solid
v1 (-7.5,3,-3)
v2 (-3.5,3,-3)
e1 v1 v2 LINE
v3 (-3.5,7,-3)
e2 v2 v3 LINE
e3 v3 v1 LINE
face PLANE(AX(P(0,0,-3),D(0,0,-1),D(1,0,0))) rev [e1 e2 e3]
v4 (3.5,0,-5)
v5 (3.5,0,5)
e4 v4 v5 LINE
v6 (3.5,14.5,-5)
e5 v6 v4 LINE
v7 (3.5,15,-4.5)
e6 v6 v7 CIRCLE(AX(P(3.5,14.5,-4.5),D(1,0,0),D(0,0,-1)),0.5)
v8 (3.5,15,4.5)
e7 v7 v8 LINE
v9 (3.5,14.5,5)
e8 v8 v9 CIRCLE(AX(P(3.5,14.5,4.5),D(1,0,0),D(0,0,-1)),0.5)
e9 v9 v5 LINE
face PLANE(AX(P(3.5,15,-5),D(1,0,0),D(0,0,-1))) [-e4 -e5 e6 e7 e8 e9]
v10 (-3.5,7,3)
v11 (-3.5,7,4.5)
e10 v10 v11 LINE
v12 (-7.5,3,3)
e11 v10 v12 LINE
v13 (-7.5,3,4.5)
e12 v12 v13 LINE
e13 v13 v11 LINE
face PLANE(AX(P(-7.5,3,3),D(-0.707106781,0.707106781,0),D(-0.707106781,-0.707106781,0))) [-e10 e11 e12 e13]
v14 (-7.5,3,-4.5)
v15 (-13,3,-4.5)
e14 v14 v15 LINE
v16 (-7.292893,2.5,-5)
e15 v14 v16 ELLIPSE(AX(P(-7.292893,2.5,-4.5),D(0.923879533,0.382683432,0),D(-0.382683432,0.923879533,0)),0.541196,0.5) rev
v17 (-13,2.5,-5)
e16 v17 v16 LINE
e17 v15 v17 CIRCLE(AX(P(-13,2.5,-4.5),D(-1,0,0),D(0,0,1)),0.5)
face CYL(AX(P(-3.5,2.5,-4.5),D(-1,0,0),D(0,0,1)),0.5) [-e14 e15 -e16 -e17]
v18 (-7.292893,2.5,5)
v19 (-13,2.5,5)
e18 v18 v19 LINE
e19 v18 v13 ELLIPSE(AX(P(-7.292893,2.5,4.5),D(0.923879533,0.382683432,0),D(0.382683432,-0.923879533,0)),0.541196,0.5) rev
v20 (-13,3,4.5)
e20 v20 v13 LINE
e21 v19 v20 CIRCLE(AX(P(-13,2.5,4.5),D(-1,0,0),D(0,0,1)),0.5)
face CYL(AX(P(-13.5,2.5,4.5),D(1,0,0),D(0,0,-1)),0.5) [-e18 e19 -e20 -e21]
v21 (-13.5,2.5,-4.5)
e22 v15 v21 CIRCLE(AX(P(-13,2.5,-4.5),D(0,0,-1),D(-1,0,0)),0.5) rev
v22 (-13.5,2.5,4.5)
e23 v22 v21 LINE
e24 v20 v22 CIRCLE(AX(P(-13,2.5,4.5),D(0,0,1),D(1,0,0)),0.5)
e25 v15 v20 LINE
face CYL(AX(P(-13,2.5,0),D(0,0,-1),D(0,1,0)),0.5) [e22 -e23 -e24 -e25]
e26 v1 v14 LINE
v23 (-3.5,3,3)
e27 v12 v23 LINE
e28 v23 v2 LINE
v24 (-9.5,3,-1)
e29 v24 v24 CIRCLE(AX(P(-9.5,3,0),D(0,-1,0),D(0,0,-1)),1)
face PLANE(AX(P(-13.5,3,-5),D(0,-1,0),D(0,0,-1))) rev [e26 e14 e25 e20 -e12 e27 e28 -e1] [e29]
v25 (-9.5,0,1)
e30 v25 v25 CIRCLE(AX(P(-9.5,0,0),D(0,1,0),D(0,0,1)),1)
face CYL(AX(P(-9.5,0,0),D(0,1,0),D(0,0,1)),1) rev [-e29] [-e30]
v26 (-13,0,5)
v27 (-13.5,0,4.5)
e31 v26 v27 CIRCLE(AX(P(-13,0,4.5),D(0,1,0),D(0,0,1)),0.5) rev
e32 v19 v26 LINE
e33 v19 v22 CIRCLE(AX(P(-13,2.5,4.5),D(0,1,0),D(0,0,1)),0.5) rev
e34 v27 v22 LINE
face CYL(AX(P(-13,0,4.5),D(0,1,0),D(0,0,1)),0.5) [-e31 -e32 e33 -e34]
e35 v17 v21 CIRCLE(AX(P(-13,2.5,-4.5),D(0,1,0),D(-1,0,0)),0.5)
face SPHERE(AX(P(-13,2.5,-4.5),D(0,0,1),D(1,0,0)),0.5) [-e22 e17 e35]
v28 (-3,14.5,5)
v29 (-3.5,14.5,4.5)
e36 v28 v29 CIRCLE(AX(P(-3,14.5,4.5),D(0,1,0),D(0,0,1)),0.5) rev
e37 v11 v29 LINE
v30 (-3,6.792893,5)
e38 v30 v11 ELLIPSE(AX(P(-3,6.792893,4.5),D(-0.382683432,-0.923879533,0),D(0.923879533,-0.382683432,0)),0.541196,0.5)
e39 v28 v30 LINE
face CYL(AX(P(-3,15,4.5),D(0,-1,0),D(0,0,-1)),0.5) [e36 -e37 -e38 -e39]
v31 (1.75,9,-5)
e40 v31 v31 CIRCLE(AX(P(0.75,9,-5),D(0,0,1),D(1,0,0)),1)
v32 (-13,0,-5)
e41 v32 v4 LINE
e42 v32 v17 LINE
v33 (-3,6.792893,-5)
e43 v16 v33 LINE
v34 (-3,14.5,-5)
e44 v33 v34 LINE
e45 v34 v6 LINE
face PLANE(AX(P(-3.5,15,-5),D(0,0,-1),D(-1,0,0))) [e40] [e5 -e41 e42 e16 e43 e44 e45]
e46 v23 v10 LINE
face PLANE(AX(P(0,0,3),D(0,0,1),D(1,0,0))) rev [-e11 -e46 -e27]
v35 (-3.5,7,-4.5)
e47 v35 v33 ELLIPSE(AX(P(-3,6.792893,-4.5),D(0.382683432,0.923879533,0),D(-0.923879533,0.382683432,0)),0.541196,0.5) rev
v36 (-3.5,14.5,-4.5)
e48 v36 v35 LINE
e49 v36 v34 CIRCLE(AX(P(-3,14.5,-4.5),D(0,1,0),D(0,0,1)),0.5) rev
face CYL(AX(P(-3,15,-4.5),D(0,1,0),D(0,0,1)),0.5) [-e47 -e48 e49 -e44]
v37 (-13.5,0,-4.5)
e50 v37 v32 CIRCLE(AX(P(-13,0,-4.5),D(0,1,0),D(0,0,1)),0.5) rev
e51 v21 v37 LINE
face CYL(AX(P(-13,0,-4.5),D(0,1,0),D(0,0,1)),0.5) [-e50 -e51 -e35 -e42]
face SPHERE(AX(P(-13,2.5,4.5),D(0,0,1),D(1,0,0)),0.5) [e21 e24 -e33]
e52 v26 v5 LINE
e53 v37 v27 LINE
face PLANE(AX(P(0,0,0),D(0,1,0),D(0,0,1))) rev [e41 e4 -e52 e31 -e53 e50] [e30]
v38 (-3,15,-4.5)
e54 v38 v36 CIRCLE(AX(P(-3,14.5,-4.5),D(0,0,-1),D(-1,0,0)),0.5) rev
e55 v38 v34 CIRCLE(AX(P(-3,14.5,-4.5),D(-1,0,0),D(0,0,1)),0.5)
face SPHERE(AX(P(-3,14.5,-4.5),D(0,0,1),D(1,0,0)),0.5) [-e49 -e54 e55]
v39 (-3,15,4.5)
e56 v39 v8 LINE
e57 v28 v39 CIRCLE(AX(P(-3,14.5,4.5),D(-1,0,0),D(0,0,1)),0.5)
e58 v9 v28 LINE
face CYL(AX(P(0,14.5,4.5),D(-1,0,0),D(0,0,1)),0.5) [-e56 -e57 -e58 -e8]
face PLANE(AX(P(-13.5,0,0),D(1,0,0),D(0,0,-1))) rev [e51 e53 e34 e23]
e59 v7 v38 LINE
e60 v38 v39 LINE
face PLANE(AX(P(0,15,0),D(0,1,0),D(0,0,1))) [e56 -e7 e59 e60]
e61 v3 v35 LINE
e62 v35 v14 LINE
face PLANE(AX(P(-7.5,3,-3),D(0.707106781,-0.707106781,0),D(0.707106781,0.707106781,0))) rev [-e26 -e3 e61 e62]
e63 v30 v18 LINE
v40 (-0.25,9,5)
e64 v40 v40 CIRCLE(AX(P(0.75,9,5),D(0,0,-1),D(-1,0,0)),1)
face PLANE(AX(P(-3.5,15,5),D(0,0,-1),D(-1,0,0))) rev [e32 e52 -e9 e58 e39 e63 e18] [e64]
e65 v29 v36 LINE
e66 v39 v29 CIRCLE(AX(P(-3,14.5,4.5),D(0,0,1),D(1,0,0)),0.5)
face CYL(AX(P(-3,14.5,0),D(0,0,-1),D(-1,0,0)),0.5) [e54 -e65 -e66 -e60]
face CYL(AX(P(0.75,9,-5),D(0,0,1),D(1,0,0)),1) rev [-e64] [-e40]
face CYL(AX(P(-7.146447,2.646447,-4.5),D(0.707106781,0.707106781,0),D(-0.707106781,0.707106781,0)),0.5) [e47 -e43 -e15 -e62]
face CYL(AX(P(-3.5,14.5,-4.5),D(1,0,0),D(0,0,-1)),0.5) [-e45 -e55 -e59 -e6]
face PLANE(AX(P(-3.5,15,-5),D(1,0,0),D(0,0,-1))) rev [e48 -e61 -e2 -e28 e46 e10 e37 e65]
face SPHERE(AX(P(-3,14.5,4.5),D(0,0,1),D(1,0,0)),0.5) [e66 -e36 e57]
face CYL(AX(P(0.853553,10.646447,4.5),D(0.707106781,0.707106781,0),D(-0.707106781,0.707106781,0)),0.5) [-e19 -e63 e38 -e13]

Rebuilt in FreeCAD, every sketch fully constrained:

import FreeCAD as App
import Part
import Sketcher
Q = App.Units.Quantity


def edges_at(feature, points):
    """Names of the edges that pass closest to the given points."""
    edges = feature.Shape.Edges
    near = lambda p: min(range(len(edges)), key=lambda i: edges[i].distToShape(Part.Vertex(*p))[0])
    return sorted({f"Edge{near(p) + 1}" for p in points})


def add_polygon(sketch, points):
    """Adds a closed chain of lines whose ends are joined by coincident constraints."""
    first, n = sketch.GeometryCount, len(points)
    for a, b in zip(points, points[1:] + points[:1]):
        sketch.addGeometry(Part.LineSegment(App.Vector(*a, 0), App.Vector(*b, 0)), False)
    for i in range(n):
        sketch.addConstraint(Sketcher.Constraint("Coincident", first + i, 2, first + (i + 1) % n, 1))

doc = App.newDocument("Part")
body = doc.addObject("PartDesign::Body", "Body")

# Sketch on XZ plane
sketch1 = doc.addObject("Sketcher::SketchObject", "Sketch")
body.addObject(sketch1)
sketch1.AttachmentSupport = (doc.XZ_Plane, [""])
sketch1.MapMode = "FlatFace"
add_polygon(sketch1, [(-4, -5), (-4, 5), (4, 5), (4, -5)])  # lines 0-3
sketch1.addConstraint([
    Sketcher.Constraint("Vertical", 0),
    Sketcher.Constraint("Horizontal", 1),
    Sketcher.Constraint("Vertical", 2),
    Sketcher.Constraint("Horizontal", 3),
    Sketcher.Constraint("Symmetric", 0, 2, 2, 2, -1, 1),
    Sketcher.Constraint("DistanceX", 1, 1, 1, 2, Q("7 mm")),
    Sketcher.Constraint("DistanceY", 0, 1, 0, 2, Q("10 mm")),
])
pad1 = doc.addObject("PartDesign::Pad", "Pad")
body.addObject(pad1)
pad1.Profile = sketch1
pad1.Length = 15
pad1.Reversed = True

# Sketch on YZ plane
sketch2 = doc.addObject("Sketcher::SketchObject", "Sketch001")
body.addObject(sketch2)
sketch2.AttachmentSupport = (doc.YZ_Plane, [""])
sketch2.MapMode = "FlatFace"
sketch2.AttachmentOffset = App.Placement(App.Vector(0, 0, -3.5), App.Rotation())
add_polygon(sketch2, [(3, -5), (0, -5), (0, 5), (3, 5)])  # lines 0-3
sketch2.addConstraint([
    Sketcher.Constraint("Horizontal", 0),
    Sketcher.Constraint("Vertical", 1),
    Sketcher.Constraint("Horizontal", 2),
    Sketcher.Constraint("Vertical", 3),
    Sketcher.Constraint("Symmetric", 0, 2, 1, 2, -1, 1),
    Sketcher.Constraint("DistanceX", 0, 2, 0, 1, Q("3 mm")),
    Sketcher.Constraint("DistanceY", 1, 1, 1, 2, Q("10 mm")),
])
pad2 = doc.addObject("PartDesign::Pad", "Pad001")
body.addObject(pad2)
pad2.Profile = sketch2
pad2.Length = 10
pad2.Reversed = True

# Sketch on XY plane
sketch3 = doc.addObject("Sketcher::SketchObject", "Sketch002")
body.addObject(sketch3)
sketch3.AttachmentSupport = (doc.XY_Plane, [""])
sketch3.MapMode = "FlatFace"
sketch3.AttachmentOffset = App.Placement(App.Vector(0, 0, 5), App.Rotation())
add_polygon(sketch3, [(-3.5, 7), (-7.5, 3), (-3.5, 3)])  # lines 0-2
sketch3.addConstraint([
    Sketcher.Constraint("Horizontal", 1),
    Sketcher.Constraint("Vertical", 2),
    Sketcher.Constraint("Equal", 1, 2),
    Sketcher.Constraint("DistanceX", 1, 1, 1, 2, Q("4 mm")),
    Sketcher.Constraint("DistanceY", -1, 1, 0, 2, Q("3 mm")),
    Sketcher.Constraint("DistanceX", 0, 2, -1, 1, Q("7.5 mm")),
])
pad3 = doc.addObject("PartDesign::Pad", "Pad002")
body.addObject(pad3)
pad3.Profile = sketch3
pad3.Length = 2
pad3.Reversed = True
doc.recompute()

mirrored = doc.addObject("PartDesign::Mirrored", "Mirrored")
body.addObject(mirrored)
mirrored.Originals = [pad3]
mirrored.MirrorPlane = (doc.XY_Plane, [""])
body.Tip = mirrored

# Sketch on XZ plane
sketch4 = doc.addObject("Sketcher::SketchObject", "Sketch003")
body.addObject(sketch4)
sketch4.AttachmentSupport = (doc.XZ_Plane, [""])
sketch4.MapMode = "FlatFace"
sketch4.AttachmentOffset = App.Placement(App.Vector(0, 0, -3), App.Rotation())
sketch4.addGeometry(Part.Circle(App.Vector(-9.5, 0, 0), App.Vector(0, 0, 1), 1), False)
sketch4.addConstraint([
    Sketcher.Constraint("PointOnObject", 0, 3, -1),
    Sketcher.Constraint("Diameter", 0, Q("2 mm")),
    Sketcher.Constraint("DistanceX", 0, 3, -1, 1, Q("9.5 mm")),
])
pocket1 = doc.addObject("PartDesign::Pocket", "Pocket")
body.addObject(pocket1)
pocket1.Profile = sketch4
pocket1.Type = "ThroughAll"
pocket1.Midplane = True

# Sketch on XY plane
sketch5 = doc.addObject("Sketcher::SketchObject", "Sketch004")
body.addObject(sketch5)
sketch5.AttachmentSupport = (doc.XY_Plane, [""])
sketch5.MapMode = "FlatFace"
sketch5.AttachmentOffset = App.Placement(App.Vector(0, 0, 5), App.Rotation())
sketch5.addGeometry(Part.Circle(App.Vector(0.8, 9, 0), App.Vector(0, 0, 1), 1), False)
sketch5.addConstraint([
    Sketcher.Constraint("Diameter", 0, Q("2 mm")),
    Sketcher.Constraint("DistanceY", -1, 1, 0, 3, Q("9 mm")),
    Sketcher.Constraint("DistanceX", -1, 1, 0, 3, Q("0.75 mm")),
])
pocket2 = doc.addObject("PartDesign::Pocket", "Pocket001")
body.addObject(pocket2)
pocket2.Profile = sketch5
pocket2.Type = "ThroughAll"
pocket2.Midplane = True
doc.recompute()

fillet = doc.addObject("PartDesign::Fillet", "Fillet")
body.addObject(fillet)
fillet.Base = (pocket2, edges_at(pocket2, [
    (0, 15, -5),
    (-10.5, 3, -5),
    (-10.5, 3, 5),
    (-13.5, 1.5, -5),
    (-13.5, 1.5, 5),
    (-13.5, 3, 0),
    (-5.5, 5, 5),
    (-3.5, 15, 0),
    (-5.5, 5, -5),
    (0, 15, 5),
    (-3.5, 11, -5),
    (-3.5, 11, 5),
]))
fillet.Radius = 0.5

doc.recompute()
